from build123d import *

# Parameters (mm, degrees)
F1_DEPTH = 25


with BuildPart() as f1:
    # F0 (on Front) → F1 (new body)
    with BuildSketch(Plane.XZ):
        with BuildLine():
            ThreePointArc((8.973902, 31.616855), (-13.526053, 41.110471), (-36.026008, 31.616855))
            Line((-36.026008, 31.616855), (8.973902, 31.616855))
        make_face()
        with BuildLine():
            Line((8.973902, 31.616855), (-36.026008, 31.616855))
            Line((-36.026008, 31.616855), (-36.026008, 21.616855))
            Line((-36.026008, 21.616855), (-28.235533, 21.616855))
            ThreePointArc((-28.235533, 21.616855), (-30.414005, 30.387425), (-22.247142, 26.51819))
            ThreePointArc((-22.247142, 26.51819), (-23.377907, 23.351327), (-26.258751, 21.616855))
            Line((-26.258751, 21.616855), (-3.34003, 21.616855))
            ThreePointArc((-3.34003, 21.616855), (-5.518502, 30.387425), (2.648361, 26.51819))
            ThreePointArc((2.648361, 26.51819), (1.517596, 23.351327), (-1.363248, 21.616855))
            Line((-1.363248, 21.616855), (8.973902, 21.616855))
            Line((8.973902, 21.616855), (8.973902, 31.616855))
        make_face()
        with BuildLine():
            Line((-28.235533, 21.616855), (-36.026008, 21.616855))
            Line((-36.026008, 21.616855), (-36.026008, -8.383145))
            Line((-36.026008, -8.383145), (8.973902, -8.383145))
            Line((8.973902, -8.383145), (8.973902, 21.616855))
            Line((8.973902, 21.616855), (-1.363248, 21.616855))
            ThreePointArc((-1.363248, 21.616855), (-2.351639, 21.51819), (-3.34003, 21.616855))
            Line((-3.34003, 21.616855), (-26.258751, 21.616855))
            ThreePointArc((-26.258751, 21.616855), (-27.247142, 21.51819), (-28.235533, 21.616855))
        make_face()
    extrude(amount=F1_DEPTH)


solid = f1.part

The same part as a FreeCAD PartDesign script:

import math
import FreeCAD as App
import Part
import Sketcher
Q = App.Units.Quantity

doc = App.newDocument("Part")
body = doc.addObject("PartDesign::Body", "Body")

# Sketch on XZ plane
sketch1 = body.newObject("Sketcher::SketchObject", "Sketch")
sketch1.AttachmentSupport = (doc.getObject("XZ_Plane"), [""])
sketch1.MapMode = "FlatFace"
sketch1.addGeometry(Part.ArcOfCircle(Part.Circle(App.Vector(-13.5, 9.7, 0), App.Vector(0, 0, 1), 31.4), math.radians(44), math.radians(136)), False)
sketch1.addGeometry(Part.LineSegment(App.Vector(-36, 31.6, 0), App.Vector(-36, -8.4, 0)), False)
sketch1.addGeometry(Part.LineSegment(App.Vector(-36, -8.4, 0), App.Vector(9, -8.4, 0)), False)
sketch1.addGeometry(Part.LineSegment(App.Vector(9, -8.4, 0), App.Vector(9, 31.6, 0)), False)
sketch1.addGeometry(Part.ArcOfCircle(Part.Circle(App.Vector(-27.2, 26.5, 0), App.Vector(0, 0, 1), 5), math.radians(0), math.radians(259)), False)
sketch1.addGeometry(Part.ArcOfCircle(Part.Circle(App.Vector(-27.2, 26.5, 0), App.Vector(0, 0, 1), 5), math.radians(-79), math.radians(0)), False)
sketch1.addGeometry(Part.ArcOfCircle(Part.Circle(App.Vector(-27.2, 26.5, 0), App.Vector(0, 0, 1), 5), math.radians(-101), math.radians(-79)), False)
sketch1.addGeometry(Part.ArcOfCircle(Part.Circle(App.Vector(-2.4, 26.5, 0), App.Vector(0, 0, 1), 5), math.radians(0), math.radians(259)), False)
sketch1.addGeometry(Part.ArcOfCircle(Part.Circle(App.Vector(-2.4, 26.5, 0), App.Vector(0, 0, 1), 5), math.radians(-79), math.radians(0)), False)
sketch1.addGeometry(Part.ArcOfCircle(Part.Circle(App.Vector(-2.4, 26.5, 0), App.Vector(0, 0, 1), 5), math.radians(-101), math.radians(-79)), False)
sketch1.addConstraint(Sketcher.Constraint("Coincident", 0, 2, 1, 1))
sketch1.addConstraint(Sketcher.Constraint("Coincident", 1, 2, 2, 1))
sketch1.addConstraint(Sketcher.Constraint("Coincident", 2, 2, 3, 1))
sketch1.addConstraint(Sketcher.Constraint("Coincident", 3, 2, 0, 1))
sketch1.addConstraint(Sketcher.Constraint("Tangent", 4, 1, 5, 2))
sketch1.addConstraint(Sketcher.Constraint("Tangent", 5, 1, 6, 2))
sketch1.addConstraint(Sketcher.Constraint("Tangent", 6, 1, 4, 2))
sketch1.addConstraint(Sketcher.Constraint("Tangent", 7, 1, 8, 2))
sketch1.addConstraint(Sketcher.Constraint("Tangent", 8, 1, 9, 2))
sketch1.addConstraint(Sketcher.Constraint("Tangent", 9, 1, 7, 2))
sketch1.addConstraint(Sketcher.Constraint("Vertical", 1))
sketch1.addConstraint(Sketcher.Constraint("Horizontal", 2))
sketch1.addConstraint(Sketcher.Constraint("Vertical", 3))
sketch1.addConstraint(Sketcher.Constraint("Equal", 5, 7))
sketch1.addConstraint(Sketcher.Constraint("Horizontal", 5, 3, 7, 3))
sketch1.addConstraint(Sketcher.Constraint("Horizontal", 0, 2, 3, 2))
sketch1.addConstraint(Sketcher.Constraint("Horizontal", 8, 3, 4, 1))
sketch1.addConstraint(Sketcher.Constraint("Horizontal", 5, 1, 6, 1))
sketch1.addConstraint(Sketcher.Constraint("Horizontal", 4, 1, 7, 1))
sketch1.addConstraint(Sketcher.Constraint("Horizontal", 6, 1, 8, 1))
sketch1.addConstraint(Sketcher.Constraint("Horizontal", 8, 1, 9, 1))
sketch1.addConstraint(Sketcher.Constraint("Radius", 4, Q("5 mm")))
sketch1.addConstraint(Sketcher.Constraint("DistanceY", 1, 2, 1, 1, Q("40 mm")))
sketch1.addConstraint(Sketcher.Constraint("DistanceY", 5, 1, 0, 2, Q("10 mm")))
sketch1.addConstraint(Sketcher.Constraint("Radius", 0, Q("31.409355 mm")))
sketch1.addConstraint(Sketcher.Constraint("DistanceX", 2, 1, 2, 2, Q("44.99991 mm")))
sketch1.addConstraint(Sketcher.Constraint("DistanceY", -1, 1, 4, 3, Q("26.51819 mm")))
sketch1.addConstraint(Sketcher.Constraint("DistanceX", 6, 3, -1, 1, Q("27.247142 mm")))
sketch1.addConstraint(Sketcher.Constraint("DistanceX", 7, 3, -1, 1, Q("2.351639 mm")))
sketch1.addConstraint(Sketcher.Constraint("DistanceX", 5, 1, -1, 1, Q("26.258751 mm")))
sketch1.addConstraint(Sketcher.Constraint("DistanceX", 4, 3, 0, 3, Q("13.721089 mm")))
pad1 = body.newObject("PartDesign::Pad", "Pad")
pad1.Profile = sketch1
pad1.Length = 25

doc.recompute()
